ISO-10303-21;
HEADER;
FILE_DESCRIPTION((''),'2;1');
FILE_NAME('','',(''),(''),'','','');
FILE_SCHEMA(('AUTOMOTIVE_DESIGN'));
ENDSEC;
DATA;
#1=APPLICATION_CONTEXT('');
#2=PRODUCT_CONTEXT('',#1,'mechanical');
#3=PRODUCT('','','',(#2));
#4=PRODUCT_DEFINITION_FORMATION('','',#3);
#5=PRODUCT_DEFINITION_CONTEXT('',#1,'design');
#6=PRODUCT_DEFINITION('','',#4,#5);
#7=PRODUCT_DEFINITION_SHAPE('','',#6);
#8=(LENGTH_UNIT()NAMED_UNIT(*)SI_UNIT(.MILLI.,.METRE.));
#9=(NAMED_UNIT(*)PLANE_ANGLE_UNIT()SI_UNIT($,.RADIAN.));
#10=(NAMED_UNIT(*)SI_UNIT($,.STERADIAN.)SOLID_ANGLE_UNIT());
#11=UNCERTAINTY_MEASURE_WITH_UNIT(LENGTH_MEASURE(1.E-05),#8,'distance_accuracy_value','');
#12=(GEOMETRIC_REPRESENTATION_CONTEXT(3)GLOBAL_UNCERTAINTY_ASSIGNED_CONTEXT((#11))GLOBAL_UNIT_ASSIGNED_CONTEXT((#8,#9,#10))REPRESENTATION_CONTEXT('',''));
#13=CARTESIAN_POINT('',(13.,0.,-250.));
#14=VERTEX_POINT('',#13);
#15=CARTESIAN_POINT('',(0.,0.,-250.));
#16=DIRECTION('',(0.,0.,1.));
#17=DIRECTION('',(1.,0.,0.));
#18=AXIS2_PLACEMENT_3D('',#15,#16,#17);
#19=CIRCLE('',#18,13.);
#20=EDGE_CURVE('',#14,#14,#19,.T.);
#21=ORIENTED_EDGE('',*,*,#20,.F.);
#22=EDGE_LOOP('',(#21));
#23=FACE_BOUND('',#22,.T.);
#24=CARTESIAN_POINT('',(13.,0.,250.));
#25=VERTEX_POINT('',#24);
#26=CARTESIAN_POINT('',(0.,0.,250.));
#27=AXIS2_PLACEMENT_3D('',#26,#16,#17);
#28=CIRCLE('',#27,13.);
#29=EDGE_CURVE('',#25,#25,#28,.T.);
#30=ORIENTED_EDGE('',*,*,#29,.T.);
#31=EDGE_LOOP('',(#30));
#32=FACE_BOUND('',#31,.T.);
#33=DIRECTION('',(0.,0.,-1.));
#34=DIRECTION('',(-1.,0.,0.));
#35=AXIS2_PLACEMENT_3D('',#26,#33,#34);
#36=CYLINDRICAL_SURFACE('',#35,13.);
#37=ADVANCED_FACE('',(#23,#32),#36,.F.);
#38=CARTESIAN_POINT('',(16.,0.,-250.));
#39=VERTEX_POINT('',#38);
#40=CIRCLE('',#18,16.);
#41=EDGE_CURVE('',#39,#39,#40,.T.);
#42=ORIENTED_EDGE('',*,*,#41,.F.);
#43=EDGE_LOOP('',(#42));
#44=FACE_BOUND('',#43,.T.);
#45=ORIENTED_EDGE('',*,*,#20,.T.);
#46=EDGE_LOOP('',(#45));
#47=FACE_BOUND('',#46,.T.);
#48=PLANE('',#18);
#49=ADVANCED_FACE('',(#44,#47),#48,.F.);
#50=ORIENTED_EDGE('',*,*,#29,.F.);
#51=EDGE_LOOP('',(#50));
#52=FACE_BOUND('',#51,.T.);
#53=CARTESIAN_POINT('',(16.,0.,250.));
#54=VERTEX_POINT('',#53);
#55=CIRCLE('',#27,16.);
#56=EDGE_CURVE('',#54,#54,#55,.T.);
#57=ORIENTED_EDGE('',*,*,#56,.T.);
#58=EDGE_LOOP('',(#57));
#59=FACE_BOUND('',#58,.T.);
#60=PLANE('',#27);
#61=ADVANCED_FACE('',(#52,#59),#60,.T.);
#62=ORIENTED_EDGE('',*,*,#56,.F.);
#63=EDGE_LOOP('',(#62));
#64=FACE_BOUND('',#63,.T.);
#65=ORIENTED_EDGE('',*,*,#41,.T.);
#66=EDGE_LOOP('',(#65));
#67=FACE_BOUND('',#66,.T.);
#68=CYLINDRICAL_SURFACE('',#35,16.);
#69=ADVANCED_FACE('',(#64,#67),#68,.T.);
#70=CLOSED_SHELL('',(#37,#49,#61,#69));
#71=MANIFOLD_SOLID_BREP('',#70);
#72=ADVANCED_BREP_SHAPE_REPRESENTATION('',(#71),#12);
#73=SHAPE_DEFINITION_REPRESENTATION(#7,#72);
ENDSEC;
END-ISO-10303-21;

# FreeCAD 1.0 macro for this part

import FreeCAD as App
import Part
import Sketcher
from FreeCAD import Vector


def faces_at(feature, points):
    """Names of the faces that lie closest to the given points."""
    faces = feature.Shape.Faces
    near = lambda p: min(range(len(faces)), key=lambda i: faces[i].distToShape(Part.Vertex(*p))[0])
    return sorted({f"Face{near(p) + 1}" for p in points})

doc = App.newDocument("Part")
body = doc.addObject("PartDesign::Body", "Body")

# Sketch on XY plane
sketch1 = body.newObject("Sketcher::SketchObject", "Sketch")
sketch1.AttachmentSupport = (doc.getObject("XY_Plane"), [""])
sketch1.MapMode = "FlatFace"
sketch1.addGeometry(Part.Circle(Vector(0, 0, 0), Vector(0, 0, 1), 16), False)
sketch1.addConstraint(Sketcher.Constraint("Coincident", 0, 3, -1, 1))
sketch1.addConstraint(Sketcher.Constraint("Diameter", 0, 32.0))
pad1 = body.newObject("PartDesign::Pad", "Pad")
pad1.Profile = sketch1
pad1.Length = 500
pad1.Midplane = True
doc.recompute()

thickness = body.newObject("PartDesign::Thickness", "Thickness")
thickness.Base = (pad1, faces_at(pad1, [(0, 0, 250), (0, 0, -250)]))
thickness.Value = 3
thickness.Reversed = True
thickness.Join = "Intersection"

doc.recompute()
